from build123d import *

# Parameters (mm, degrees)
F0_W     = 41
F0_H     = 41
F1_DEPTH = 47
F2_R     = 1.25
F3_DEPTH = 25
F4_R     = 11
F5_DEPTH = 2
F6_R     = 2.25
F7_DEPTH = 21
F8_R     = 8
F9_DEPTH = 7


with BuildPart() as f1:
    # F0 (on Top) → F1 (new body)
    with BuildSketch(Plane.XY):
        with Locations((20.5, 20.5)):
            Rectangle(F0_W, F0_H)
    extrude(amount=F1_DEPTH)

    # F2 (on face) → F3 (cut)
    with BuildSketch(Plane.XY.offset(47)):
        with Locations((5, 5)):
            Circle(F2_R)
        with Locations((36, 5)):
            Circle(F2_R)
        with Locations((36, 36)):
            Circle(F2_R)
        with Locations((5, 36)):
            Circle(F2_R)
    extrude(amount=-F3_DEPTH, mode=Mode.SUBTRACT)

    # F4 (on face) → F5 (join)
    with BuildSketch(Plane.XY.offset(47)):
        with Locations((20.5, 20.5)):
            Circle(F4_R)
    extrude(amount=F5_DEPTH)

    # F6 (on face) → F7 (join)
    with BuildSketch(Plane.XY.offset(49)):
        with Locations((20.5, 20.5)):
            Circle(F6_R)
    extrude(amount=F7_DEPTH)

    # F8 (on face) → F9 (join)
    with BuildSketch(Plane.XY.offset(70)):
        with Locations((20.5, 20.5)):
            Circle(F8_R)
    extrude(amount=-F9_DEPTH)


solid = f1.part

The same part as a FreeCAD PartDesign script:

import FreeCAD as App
import Part
import Sketcher
from FreeCAD import Vector
Q = App.Units.Quantity


def add_polygon(sketch, points):
    """Adds a closed chain of lines whose ends are joined by coincident constraints."""
    first, n = sketch.GeometryCount, len(points)
    for a, b in zip(points, points[1:] + points[:1]):
        sketch.addGeometry(Part.LineSegment(App.Vector(*a, 0), App.Vector(*b, 0)), False)
    for i in range(n):
        sketch.addConstraint(Sketcher.Constraint("Coincident", first + i, 2, first + (i + 1) % n, 1))

doc = App.newDocument("Part")
body = doc.addObject("PartDesign::Body", "Body")

sketch1 = doc.addObject("Sketcher::SketchObject", "Sketch")
body.addObject(sketch1)
sketch1.AttachmentSupport = (doc.XY_Plane, [""])
sketch1.MapMode = "FlatFace"
add_polygon(sketch1, [(0, 41), (0, 0), (41, 0), (41, 41)])
sketch1.addConstraint(Sketcher.Constraint("Vertical", 0))
sketch1.addConstraint(Sketcher.Constraint("Horizontal", 1))
sketch1.addConstraint(Sketcher.Constraint("Vertical", 2))
sketch1.addConstraint(Sketcher.Constraint("Horizontal", 3))
sketch1.addConstraint(Sketcher.Constraint("Coincident", 0, 2, -1, 1))
sketch1.addConstraint(Sketcher.Constraint("Equal", 3, 0))
sketch1.addConstraint(Sketcher.Constraint("DistanceX", 1, 1, 1, 2, Q("41 mm")))
pad1 = doc.addObject("PartDesign::Pad", "Pad")
body.addObject(pad1)
pad1.Profile = sketch1
pad1.Length = 47

sketch2 = doc.addObject("Sketcher::SketchObject", "Sketch001")
body.addObject(sketch2)
sketch2.AttachmentSupport = (doc.XY_Plane, [""])
sketch2.MapMode = "FlatFace"
sketch2.AttachmentOffset = App.Placement(Vector(0, 0, 47), App.Rotation())
sketch2.addGeometry(Part.Circle(Vector(5, 5, 0), Vector(0, 0, 1), 1.2), False)
sketch2.addGeometry(Part.Circle(Vector(36, 5, 0), Vector(0, 0, 1), 1.2), False)
sketch2.addGeometry(Part.Circle(Vector(36, 36, 0), Vector(0, 0, 1), 1.2), False)
sketch2.addGeometry(Part.Circle(Vector(5, 36, 0), Vector(0, 0, 1), 1.2), False)
sketch2.addConstraint(Sketcher.Constraint("Equal", 0, 1))
sketch2.addConstraint(Sketcher.Constraint("Equal", 1, 2))
sketch2.addConstraint(Sketcher.Constraint("Equal", 2, 3))
sketch2.addConstraint(Sketcher.Constraint("Horizontal", 0, 3, 1, 3))
sketch2.addConstraint(Sketcher.Constraint("Horizontal", 2, 3, 3, 3))
sketch2.addConstraint(Sketcher.Constraint("Vertical", 1, 3, 2, 3))
sketch2.addConstraint(Sketcher.Constraint("Vertical", 0, 3, 3, 3))
sketch2.addConstraint(Sketcher.Constraint("Diameter", 0, Q("2.5 mm")))
sketch2.addConstraint(Sketcher.Constraint("DistanceX", -1, 1, 0, 3, Q("5 mm")))
sketch2.addConstraint(Sketcher.Constraint("DistanceY", -1, 1, 0, 3, Q("5 mm")))
sketch2.addConstraint(Sketcher.Constraint("DistanceX", -1, 1, 1, 3, Q("36 mm")))
sketch2.addConstraint(Sketcher.Constraint("DistanceY", -1, 1, 2, 3, Q("36 mm")))
pocket1 = doc.addObject("PartDesign::Pocket", "Pocket")
body.addObject(pocket1)
pocket1.Profile = sketch2
pocket1.Length = 25

sketch3 = doc.addObject("Sketcher::SketchObject", "Sketch002")
body.addObject(sketch3)
sketch3.AttachmentSupport = (doc.XY_Plane, [""])
sketch3.MapMode = "FlatFace"
sketch3.AttachmentOffset = App.Placement(Vector(0, 0, 47), App.Rotation())
sketch3.addGeometry(Part.Circle(Vector(20, 20, 0), Vector(0, 0, 1), 11), False)
sketch3.addConstraint(Sketcher.Constraint("Diameter", 0, Q("22 mm")))
sketch3.addConstraint(Sketcher.Constraint("DistanceX", -1, 1, 0, 3, Q("20.5 mm")))
sketch3.addConstraint(Sketcher.Constraint("DistanceY", -1, 1, 0, 3, Q("20.5 mm")))
pad2 = doc.addObject("PartDesign::Pad", "Pad001")
body.addObject(pad2)
pad2.Profile = sketch3
pad2.Length = 2

sketch4 = doc.addObject("Sketcher::SketchObject", "Sketch003")
body.addObject(sketch4)
sketch4.AttachmentSupport = (doc.XY_Plane, [""])
sketch4.MapMode = "FlatFace"
sketch4.AttachmentOffset = App.Placement(Vector(0, 0, 49), App.Rotation())
sketch4.addGeometry(Part.Circle(Vector(20.5, 20.5, 0), Vector(0, 0, 1), 2.2), False)
sketch4.addConstraint(Sketcher.Constraint("Diameter", 0, Q("4.5 mm")))
sketch4.addConstraint(Sketcher.Constraint("DistanceX", -1, 1, 0, 3, Q("20.5 mm")))
sketch4.addConstraint(Sketcher.Constraint("DistanceY", -1, 1, 0, 3, Q("20.5 mm")))
pad3 = doc.addObject("PartDesign::Pad", "Pad002")
body.addObject(pad3)
pad3.Profile = sketch4
pad3.Length = 21

sketch5 = doc.addObject("Sketcher::SketchObject", "Sketch004")
body.addObject(sketch5)
sketch5.AttachmentSupport = (doc.XY_Plane, [""])
sketch5.MapMode = "FlatFace"
sketch5.AttachmentOffset = App.Placement(Vector(0, 0, 70), App.Rotation())
sketch5.addGeometry(Part.Circle(Vector(20, 20, 0), Vector(0, 0, 1), 8), False)
sketch5.addConstraint(Sketcher.Constraint("Diameter", 0, Q("16 mm")))
sketch5.addConstraint(Sketcher.Constraint("DistanceX", -1, 1, 0, 3, Q("20.5 mm")))
sketch5.addConstraint(Sketcher.Constraint("DistanceY", -1, 1, 0, 3, Q("20.5 mm")))
pad4 = doc.addObject("PartDesign::Pad", "Pad003")
body.addObject(pad4)
pad4.Profile = sketch5
pad4.Length = 7
pad4.Reversed = True

doc.recompute()
